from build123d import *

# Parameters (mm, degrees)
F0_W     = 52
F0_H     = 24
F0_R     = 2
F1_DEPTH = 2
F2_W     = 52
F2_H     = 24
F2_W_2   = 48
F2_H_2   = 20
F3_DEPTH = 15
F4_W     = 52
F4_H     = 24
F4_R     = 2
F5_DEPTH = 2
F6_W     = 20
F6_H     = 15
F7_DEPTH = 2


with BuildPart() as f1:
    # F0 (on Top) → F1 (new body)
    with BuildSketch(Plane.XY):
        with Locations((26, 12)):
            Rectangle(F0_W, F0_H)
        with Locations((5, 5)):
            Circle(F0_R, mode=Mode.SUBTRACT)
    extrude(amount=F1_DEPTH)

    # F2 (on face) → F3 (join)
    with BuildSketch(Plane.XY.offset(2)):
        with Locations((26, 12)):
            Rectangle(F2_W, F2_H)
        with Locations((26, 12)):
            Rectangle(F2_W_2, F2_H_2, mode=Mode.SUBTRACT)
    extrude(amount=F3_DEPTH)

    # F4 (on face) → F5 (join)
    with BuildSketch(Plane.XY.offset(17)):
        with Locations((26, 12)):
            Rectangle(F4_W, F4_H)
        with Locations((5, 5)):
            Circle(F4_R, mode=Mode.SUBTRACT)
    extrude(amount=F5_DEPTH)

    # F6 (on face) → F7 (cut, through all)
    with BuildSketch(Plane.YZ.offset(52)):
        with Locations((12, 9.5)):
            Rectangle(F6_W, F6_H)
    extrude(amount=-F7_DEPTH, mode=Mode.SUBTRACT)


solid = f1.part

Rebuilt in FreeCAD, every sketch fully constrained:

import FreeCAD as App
import Part
import Sketcher
Q = App.Units.Quantity

doc = App.newDocument("Part")
body = doc.addObject("PartDesign::Body", "Body")

sketch1 = body.newObject("Sketcher::SketchObject", "Sketch")
sketch1.AttachmentSupport = (doc.getObject("XY_Plane"), [""])
sketch1.MapMode = "FlatFace"
sketch1.addGeometry([
    Part.LineSegment(App.Vector(0, 24, 0), App.Vector(0, 0, 0)),
    Part.LineSegment(App.Vector(0, 0, 0), App.Vector(52, 0, 0)),
    Part.LineSegment(App.Vector(52, 0, 0), App.Vector(52, 24, 0)),
    Part.LineSegment(App.Vector(52, 24, 0), App.Vector(0, 24, 0)),
    Part.Circle(App.Vector(5, 5, 0), App.Vector(0, 0, 1), 2),
], False)
sketch1.addConstraint([
    Sketcher.Constraint("Coincident", 0, 2, 1, 1),
    Sketcher.Constraint("Coincident", 1, 2, 2, 1),
    Sketcher.Constraint("Coincident", 2, 2, 3, 1),
    Sketcher.Constraint("Coincident", 3, 2, 0, 1),
    Sketcher.Constraint("Vertical", 0),
    Sketcher.Constraint("Horizontal", 1),
    Sketcher.Constraint("Vertical", 2),
    Sketcher.Constraint("Horizontal", 3),
    Sketcher.Constraint("Coincident", 0, 2, -1, 1),
    Sketcher.Constraint("Diameter", 4, Q("4 mm")),
    Sketcher.Constraint("DistanceX", 1, 1, 1, 2, Q("52 mm")),
    Sketcher.Constraint("DistanceY", 0, 2, 0, 1, Q("24 mm")),
    Sketcher.Constraint("DistanceX", -1, 1, 4, 3, Q("5 mm")),
    Sketcher.Constraint("DistanceY", -1, 1, 4, 3, Q("5 mm")),
])
pad1 = body.newObject("PartDesign::Pad", "Pad")
pad1.Profile = sketch1
pad1.Length = 2

sketch2 = body.newObject("Sketcher::SketchObject", "Sketch001")
sketch2.AttachmentSupport = (doc.getObject("XY_Plane"), [""])
sketch2.MapMode = "FlatFace"
sketch2.AttachmentOffset = App.Placement(App.Vector(0, 0, 2), App.Rotation())
sketch2.addGeometry([
    Part.LineSegment(App.Vector(0, 24, 0), App.Vector(0, 0, 0)),
    Part.LineSegment(App.Vector(0, 0, 0), App.Vector(52, 0, 0)),
    Part.LineSegment(App.Vector(52, 0, 0), App.Vector(52, 24, 0)),
    Part.LineSegment(App.Vector(52, 24, 0), App.Vector(0, 24, 0)),
    Part.LineSegment(App.Vector(50, 2, 0), App.Vector(2, 2, 0)),
    Part.LineSegment(App.Vector(2, 2, 0), App.Vector(2, 22, 0)),
    Part.LineSegment(App.Vector(2, 22, 0), App.Vector(50, 22, 0)),
    Part.LineSegment(App.Vector(50, 22, 0), App.Vector(50, 2, 0)),
], False)
sketch2.addConstraint([
    Sketcher.Constraint("Coincident", 0, 2, 1, 1),
    Sketcher.Constraint("Coincident", 1, 2, 2, 1),
    Sketcher.Constraint("Coincident", 2, 2, 3, 1),
    Sketcher.Constraint("Coincident", 3, 2, 0, 1),
    Sketcher.Constraint("Coincident", 4, 2, 5, 1),
    Sketcher.Constraint("Coincident", 5, 2, 6, 1),
    Sketcher.Constraint("Coincident", 6, 2, 7, 1),
    Sketcher.Constraint("Coincident", 7, 2, 4, 1),
    Sketcher.Constraint("Vertical", 0),
    Sketcher.Constraint("Horizontal", 1),
    Sketcher.Constraint("Vertical", 2),
    Sketcher.Constraint("Horizontal", 3),
    Sketcher.Constraint("Horizontal", 4),
    Sketcher.Constraint("Vertical", 5),
    Sketcher.Constraint("Horizontal", 6),
    Sketcher.Constraint("Vertical", 7),
    Sketcher.Constraint("Coincident", 0, 2, -1, 1),
    Sketcher.Constraint("DistanceX", 1, 1, 1, 2, Q("52 mm")),
    Sketcher.Constraint("DistanceX", 4, 2, 4, 1, Q("48 mm")),
    Sketcher.Constraint("DistanceY", 0, 2, 0, 1, Q("24 mm")),
    Sketcher.Constraint("DistanceY", 5, 1, 5, 2, Q("20 mm")),
    Sketcher.Constraint("DistanceX", -1, 1, 4, 2, Q("2 mm")),
    Sketcher.Constraint("DistanceY", -1, 1, 4, 2, Q("2 mm")),
])
pad2 = body.newObject("PartDesign::Pad", "Pad001")
pad2.Profile = sketch2
pad2.Length = 15

sketch3 = body.newObject("Sketcher::SketchObject", "Sketch002")
sketch3.AttachmentSupport = (doc.getObject("XY_Plane"), [""])
sketch3.MapMode = "FlatFace"
sketch3.AttachmentOffset = App.Placement(App.Vector(0, 0, 17), App.Rotation())
sketch3.addGeometry([
    Part.LineSegment(App.Vector(0, 24, 0), App.Vector(0, 0, 0)),
    Part.LineSegment(App.Vector(0, 0, 0), App.Vector(52, 0, 0)),
    Part.LineSegment(App.Vector(52, 0, 0), App.Vector(52, 24, 0)),
    Part.LineSegment(App.Vector(52, 24, 0), App.Vector(0, 24, 0)),
    Part.Circle(App.Vector(5, 5, 0), App.Vector(0, 0, 1), 2),
], False)
sketch3.addConstraint([
    Sketcher.Constraint("Coincident", 0, 2, 1, 1),
    Sketcher.Constraint("Coincident", 1, 2, 2, 1),
    Sketcher.Constraint("Coincident", 2, 2, 3, 1),
    Sketcher.Constraint("Coincident", 3, 2, 0, 1),
    Sketcher.Constraint("Vertical", 0),
    Sketcher.Constraint("Horizontal", 1),
    Sketcher.Constraint("Vertical", 2),
    Sketcher.Constraint("Horizontal", 3),
    Sketcher.Constraint("Coincident", 0, 2, -1, 1),
    Sketcher.Constraint("Diameter", 4, Q("4 mm")),
    Sketcher.Constraint("DistanceX", 1, 1, 1, 2, Q("52 mm")),
    Sketcher.Constraint("DistanceY", 0, 2, 0, 1, Q("24 mm")),
    Sketcher.Constraint("DistanceX", -1, 1, 4, 3, Q("5 mm")),
    Sketcher.Constraint("DistanceY", -1, 1, 4, 3, Q("5 mm")),
])
pad3 = body.newObject("PartDesign::Pad", "Pad002")
pad3.Profile = sketch3
pad3.Length = 2

sketch4 = body.newObject("Sketcher::SketchObject", "Sketch003")
sketch4.AttachmentSupport = (doc.getObject("YZ_Plane"), [""])
sketch4.MapMode = "FlatFace"
sketch4.AttachmentOffset = App.Placement(App.Vector(0, 0, 52), App.Rotation())
sketch4.addGeometry([
    Part.LineSegment(App.Vector(2, 17, 0), App.Vector(2, 2, 0)),
    Part.LineSegment(App.Vector(2, 2, 0), App.Vector(22, 2, 0)),
    Part.LineSegment(App.Vector(22, 2, 0), App.Vector(22, 17, 0)),
    Part.LineSegment(App.Vector(22, 17, 0), App.Vector(2, 17, 0)),
], False)
sketch4.addConstraint([
    Sketcher.Constraint("Coincident", 0, 2, 1, 1),
    Sketcher.Constraint("Coincident", 1, 2, 2, 1),
    Sketcher.Constraint("Coincident", 2, 2, 3, 1),
    Sketcher.Constraint("Coincident", 3, 2, 0, 1),
    Sketcher.Constraint("Vertical", 0),
    Sketcher.Constraint("Horizontal", 1),
    Sketcher.Constraint("Vertical", 2),
    Sketcher.Constraint("Horizontal", 3),
    Sketcher.Constraint("DistanceX", 1, 1, 1, 2, Q("20 mm")),
    Sketcher.Constraint("DistanceY", 0, 2, 0, 1, Q("15 mm")),
    Sketcher.Constraint("DistanceX", -1, 1, 0, 2, Q("2 mm")),
    Sketcher.Constraint("DistanceY", -1, 1, 0, 2, Q("2 mm")),
])
pocket1 = body.newObject("PartDesign::Pocket", "Pocket")
pocket1.Profile = sketch4
pocket1.Length = 2

doc.recompute()
